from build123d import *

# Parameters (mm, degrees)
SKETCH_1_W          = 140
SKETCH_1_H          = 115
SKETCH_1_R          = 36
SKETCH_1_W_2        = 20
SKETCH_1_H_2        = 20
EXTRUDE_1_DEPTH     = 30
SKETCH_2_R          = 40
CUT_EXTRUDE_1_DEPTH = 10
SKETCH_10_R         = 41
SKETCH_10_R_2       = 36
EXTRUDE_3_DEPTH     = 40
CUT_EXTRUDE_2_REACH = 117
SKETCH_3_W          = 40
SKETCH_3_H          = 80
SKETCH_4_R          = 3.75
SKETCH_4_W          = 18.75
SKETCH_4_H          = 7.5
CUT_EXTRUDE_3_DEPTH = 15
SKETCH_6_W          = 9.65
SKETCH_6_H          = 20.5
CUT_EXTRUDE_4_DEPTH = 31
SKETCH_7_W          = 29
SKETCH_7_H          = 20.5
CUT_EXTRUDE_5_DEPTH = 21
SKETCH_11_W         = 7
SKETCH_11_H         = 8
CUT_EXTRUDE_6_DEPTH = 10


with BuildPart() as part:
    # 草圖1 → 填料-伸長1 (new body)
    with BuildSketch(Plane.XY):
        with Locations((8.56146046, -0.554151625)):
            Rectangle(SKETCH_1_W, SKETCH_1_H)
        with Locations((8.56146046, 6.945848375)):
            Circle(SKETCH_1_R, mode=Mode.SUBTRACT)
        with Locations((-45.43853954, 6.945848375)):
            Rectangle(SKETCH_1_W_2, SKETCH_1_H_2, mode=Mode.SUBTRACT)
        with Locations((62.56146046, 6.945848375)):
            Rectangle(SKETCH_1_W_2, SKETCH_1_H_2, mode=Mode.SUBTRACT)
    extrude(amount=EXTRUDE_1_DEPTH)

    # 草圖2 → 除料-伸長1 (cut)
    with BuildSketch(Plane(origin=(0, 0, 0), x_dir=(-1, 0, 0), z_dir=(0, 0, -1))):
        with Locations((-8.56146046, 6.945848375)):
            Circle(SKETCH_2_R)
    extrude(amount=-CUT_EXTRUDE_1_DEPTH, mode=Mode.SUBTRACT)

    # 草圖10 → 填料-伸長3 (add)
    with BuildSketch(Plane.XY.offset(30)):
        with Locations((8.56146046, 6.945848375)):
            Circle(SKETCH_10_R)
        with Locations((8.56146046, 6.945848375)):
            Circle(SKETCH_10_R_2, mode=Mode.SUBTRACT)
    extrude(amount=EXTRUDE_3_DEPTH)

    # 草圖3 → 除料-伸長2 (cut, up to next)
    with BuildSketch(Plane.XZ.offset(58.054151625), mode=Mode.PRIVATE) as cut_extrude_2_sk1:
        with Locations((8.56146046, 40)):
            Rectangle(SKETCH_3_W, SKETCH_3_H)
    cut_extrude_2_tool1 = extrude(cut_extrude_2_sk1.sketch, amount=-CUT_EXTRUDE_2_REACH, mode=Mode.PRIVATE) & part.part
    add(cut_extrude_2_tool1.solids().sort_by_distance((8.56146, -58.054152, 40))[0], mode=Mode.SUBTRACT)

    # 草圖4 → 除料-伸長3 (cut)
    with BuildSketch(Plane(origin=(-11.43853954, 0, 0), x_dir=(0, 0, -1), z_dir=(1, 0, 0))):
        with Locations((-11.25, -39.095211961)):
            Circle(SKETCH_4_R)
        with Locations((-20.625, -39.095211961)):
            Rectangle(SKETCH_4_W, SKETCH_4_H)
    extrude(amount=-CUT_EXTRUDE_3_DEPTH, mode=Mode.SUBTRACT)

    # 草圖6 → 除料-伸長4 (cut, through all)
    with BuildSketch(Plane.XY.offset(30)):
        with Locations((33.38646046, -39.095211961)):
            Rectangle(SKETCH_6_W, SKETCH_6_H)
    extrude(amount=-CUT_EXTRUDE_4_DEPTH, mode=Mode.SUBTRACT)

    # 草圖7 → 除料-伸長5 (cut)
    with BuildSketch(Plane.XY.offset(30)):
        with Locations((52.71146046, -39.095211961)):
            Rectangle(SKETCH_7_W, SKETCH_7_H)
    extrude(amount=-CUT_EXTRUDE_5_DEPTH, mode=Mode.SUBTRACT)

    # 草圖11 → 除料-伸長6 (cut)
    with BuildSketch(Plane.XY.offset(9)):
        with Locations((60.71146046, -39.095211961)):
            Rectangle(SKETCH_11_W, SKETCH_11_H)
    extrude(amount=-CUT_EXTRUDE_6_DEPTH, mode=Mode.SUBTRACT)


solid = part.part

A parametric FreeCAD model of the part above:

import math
import FreeCAD as App
import Part
import Sketcher

V = App.Vector


def add_polygon(sketch, points):
    """Adds a closed chain of lines whose ends are joined by coincident constraints."""
    first, n = sketch.GeometryCount, len(points)
    for a, b in zip(points, points[1:] + points[:1]):
        sketch.addGeometry(Part.LineSegment(App.Vector(*a, 0), App.Vector(*b, 0)), False)
    for i in range(n):
        sketch.addConstraint(Sketcher.Constraint("Coincident", first + i, 2, first + (i + 1) % n, 1))

doc = App.newDocument("Part")
params = doc.addObject("Spreadsheet::Sheet", "Params")
for row, (alias, value) in enumerate([
    ("sketch1_diameter", "72 mm"),
    ("sketch1_width", "140 mm"),
    ("sketch1_width2", "20 mm"),
    ("sketch1_height", "115 mm"),
    ("pad1_length", "30 mm"),
    ("sketch2_diameter", "80 mm"),
    ("pocket1_length", "10 mm"),
    ("sketch3_diameter", "82 mm"),
    ("sketch3_diameter2", "72 mm"),
    ("pad2_length", "40 mm"),
    ("sketch4_width", "40 mm"),
    ("sketch4_height", "80 mm"),
    ("pocket2_length", "35.066741 mm"),
    ("sketch5_radius", "3.75 mm"),
    ("sketch5_height", "18.75 mm"),
    ("pocket3_length", "15 mm"),
    ("sketch6_height", "20.5 mm"),
    ("sketch6_width", "9.65 mm"),
    ("sketch7_width", "29 mm"),
    ("sketch7_height", "20.5 mm"),
    ("pocket5_length", "21 mm"),
    ("sketch8_width", "7 mm"),
    ("sketch8_height", "8 mm"),
    ("pocket6_length", "10 mm"),
], start=1):
    params.set(f"A{row}", alias)
    params.set(f"B{row}", "=" + value)
    params.setAlias(f"B{row}", alias)

body = doc.addObject("PartDesign::Body", "Body")

sketch1 = doc.addObject("Sketcher::SketchObject", "Sketch")
body.addObject(sketch1)
sketch1.AttachmentSupport = (doc.XY_Plane, [""])
sketch1.MapMode = "FlatFace"
add_polygon(sketch1, [(-61, 57), (-61, -58), (79, -58), (79, 57)])
add_polygon(sketch1, [(-35, -3), (-55, -3), (-55, 17), (-35, 17)])
sketch1.addGeometry(Part.Circle(V(9, 7, 0), V(0, 0, 1), 36), False)
add_polygon(sketch1, [(73, -3), (53, -3), (53, 17), (73, 17)])
sketch1.addConstraint(Sketcher.Constraint("Vertical", 0))
sketch1.addConstraint(Sketcher.Constraint("Horizontal", 1))
sketch1.addConstraint(Sketcher.Constraint("Vertical", 2))
sketch1.addConstraint(Sketcher.Constraint("Horizontal", 3))
sketch1.addConstraint(Sketcher.Constraint("Horizontal", 4))
sketch1.addConstraint(Sketcher.Constraint("Vertical", 5))
sketch1.addConstraint(Sketcher.Constraint("Horizontal", 6))
sketch1.addConstraint(Sketcher.Constraint("Vertical", 7))
sketch1.addConstraint(Sketcher.Constraint("Horizontal", 9))
sketch1.addConstraint(Sketcher.Constraint("Vertical", 10))
sketch1.addConstraint(Sketcher.Constraint("Horizontal", 11))
sketch1.addConstraint(Sketcher.Constraint("Vertical", 12))
sketch1.addConstraint(Sketcher.Constraint("Horizontal", 7, 2, 9, 2))
sketch1.addConstraint(Sketcher.Constraint("Horizontal", 6, 2, 10, 2))
sketch1.addConstraint(Sketcher.Constraint("Equal", 6, 9))
sketch1.addConstraint(Sketcher.Constraint("Equal", 11, 5))
sketch1.addConstraint(Sketcher.Constraint("Diameter", 8, 72.0))
sketch1.addConstraint(Sketcher.Constraint("DistanceX", 1, 1, 1, 2, 140.0))
sketch1.addConstraint(Sketcher.Constraint("DistanceX", 4, 2, 4, 1, 20.0))
sketch1.addConstraint(Sketcher.Constraint("DistanceY", 0, 2, 0, 1, 115.0))
sketch1.addConstraint(Sketcher.Constraint("DistanceX", 0, 2, 8, 3, 70.0))
sketch1.addConstraint(Sketcher.Constraint("DistanceY", 0, 2, 8, 3, 65.0))
sketch1.addConstraint(Sketcher.Constraint("DistanceX", 0, 2, 4, 2, 6.0))
sketch1.addConstraint(Sketcher.Constraint("DistanceY", 0, 2, 4, 2, 55.0))
sketch1.addConstraint(Sketcher.Constraint("DistanceX", 8, 3, 9, 2, 44.0))
sketch1.addConstraint(Sketcher.Constraint("DistanceX", -1, 1, 8, 3, 8.56146))
sketch1.addConstraint(Sketcher.Constraint("DistanceY", -1, 1, 8, 3, 6.945848))
sketch1.setExpression("Constraints[28]", "Params.sketch1_diameter")
sketch1.setExpression("Constraints[29]", "Params.sketch1_width")
sketch1.setExpression("Constraints[30]", "Params.sketch1_width2")
sketch1.setExpression("Constraints[31]", "Params.sketch1_height")
pad1 = doc.addObject("PartDesign::Pad", "Pad")
body.addObject(pad1)
pad1.Profile = sketch1
pad1.setExpression("Length", "Params.pad1_length")

sketch2 = doc.addObject("Sketcher::SketchObject", "Sketch001")
body.addObject(sketch2)
sketch2.AttachmentSupport = (doc.XY_Plane, [""])
sketch2.MapMode = "FlatFace"
sketch2.addGeometry(Part.Circle(V(9, 7, 0), V(0, 0, 1), 40), False)
sketch2.addConstraint(Sketcher.Constraint("Diameter", 0, 80.0))
sketch2.addConstraint(Sketcher.Constraint("DistanceX", -1, 1, 0, 3, 8.56146))
sketch2.addConstraint(Sketcher.Constraint("DistanceY", -1, 1, 0, 3, 6.945848))
sketch2.setExpression("Constraints[0]", "Params.sketch2_diameter")
pocket1 = doc.addObject("PartDesign::Pocket", "Pocket")
body.addObject(pocket1)
pocket1.Profile = sketch2
pocket1.setExpression("Length", "Params.pocket1_length")
pocket1.Reversed = True

sketch3 = doc.addObject("Sketcher::SketchObject", "Sketch002")
body.addObject(sketch3)
sketch3.AttachmentSupport = (doc.XY_Plane, [""])
sketch3.MapMode = "FlatFace"
sketch3.AttachmentOffset = App.Placement(V(0, 0, 30), App.Rotation())
sketch3.addGeometry(Part.Circle(V(9, 7, 0), V(0, 0, 1), 41), False)
sketch3.addGeometry(Part.Circle(V(9, 7, 0), V(0, 0, 1), 36), False)
sketch3.addConstraint(Sketcher.Constraint("Coincident", 1, 3, 0, 3))
sketch3.addConstraint(Sketcher.Constraint("Diameter", 0, 82.0))
sketch3.addConstraint(Sketcher.Constraint("Diameter", 1, 72.0))
sketch3.addConstraint(Sketcher.Constraint("DistanceX", -1, 1, 0, 3, 8.56146))
sketch3.addConstraint(Sketcher.Constraint("DistanceY", -1, 1, 0, 3, 6.945848))
sketch3.setExpression("Constraints[1]", "Params.sketch3_diameter")
sketch3.setExpression("Constraints[2]", "Params.sketch3_diameter2")
pad2 = doc.addObject("PartDesign::Pad", "Pad001")
body.addObject(pad2)
pad2.Profile = sketch3
pad2.setExpression("Length", "Params.pad2_length")

sketch4 = doc.addObject("Sketcher::SketchObject", "Sketch003")
body.addObject(sketch4)
sketch4.AttachmentSupport = (doc.XZ_Plane, [""])
sketch4.MapMode = "FlatFace"
sketch4.AttachmentOffset = App.Placement(V(0, 0, 58.054152), App.Rotation())
add_polygon(sketch4, [(-11, 80), (-11, 0), (29, 0), (29, 80)])
sketch4.addConstraint(Sketcher.Constraint("Vertical", 0))
sketch4.addConstraint(Sketcher.Constraint("Horizontal", 1))
sketch4.addConstraint(Sketcher.Constraint("Vertical", 2))
sketch4.addConstraint(Sketcher.Constraint("Horizontal", 3))
sketch4.addConstraint(Sketcher.Constraint("PointOnObject", 0, 2, -1))
sketch4.addConstraint(Sketcher.Constraint("DistanceX", 1, 1, 1, 2, 40.0))
sketch4.addConstraint(Sketcher.Constraint("DistanceY", 0, 2, 0, 1, 80.0))
sketch4.addConstraint(Sketcher.Constraint("DistanceX", 0, 2, -1, 1, 11.43854))
sketch4.setExpression("Constraints[9]", "Params.sketch4_width")
sketch4.setExpression("Constraints[10]", "Params.sketch4_height")
pocket2 = doc.addObject("PartDesign::Pocket", "Pocket001")
body.addObject(pocket2)
pocket2.Profile = sketch4
pocket2.setExpression("Length", "Params.pocket2_length")

sketch5 = doc.addObject("Sketcher::SketchObject", "Sketch004")
body.addObject(sketch5)
sketch5.AttachmentSupport = (doc.YZ_Plane, [""])
sketch5.MapMode = "FlatFace"
sketch5.AttachmentOffset = App.Placement(V(0, 0, -11.43854), App.Rotation())
sketch5.addGeometry(Part.ArcOfCircle(Part.Circle(V(-39.1, 11.2, 0), V(0, 0, 1), 3.8), math.radians(180), math.radians(360)), False)
sketch5.addGeometry(Part.LineSegment(V(-35.3, 11.2, 0), V(-35.3, 30, 0)), False)
sketch5.addGeometry(Part.LineSegment(V(-35.3, 30, 0), V(-42.8, 30, 0)), False)
sketch5.addGeometry(Part.LineSegment(V(-42.8, 30, 0), V(-42.8, 11.2, 0)), False)
sketch5.addConstraint(Sketcher.Constraint("Tangent", 0, 2, 1, 1))
sketch5.addConstraint(Sketcher.Constraint("Coincident", 1, 2, 2, 1))
sketch5.addConstraint(Sketcher.Constraint("Coincident", 2, 2, 3, 1))
sketch5.addConstraint(Sketcher.Constraint("Tangent", 3, 2, 0, 1))
sketch5.addConstraint(Sketcher.Constraint("Vertical", 1))
sketch5.addConstraint(Sketcher.Constraint("Horizontal", 2))
sketch5.addConstraint(Sketcher.Constraint("Vertical", 3))
sketch5.addConstraint(Sketcher.Constraint("Radius", 0, 3.75))
sketch5.addConstraint(Sketcher.Constraint("DistanceY", -1, 1, 1, 2, 30.0))
sketch5.addConstraint(Sketcher.Constraint("DistanceY", 1, 1, 1, 2, 18.75))
sketch5.addConstraint(Sketcher.Constraint("DistanceX", 0, 3, -1, 1, 39.095212))
sketch5.setExpression("Constraints[7]", "Params.sketch5_radius")
sketch5.setExpression("Constraints[9]", "Params.sketch5_height")
pocket3 = doc.addObject("PartDesign::Pocket", "Pocket002")
body.addObject(pocket3)
pocket3.Profile = sketch5
pocket3.setExpression("Length", "Params.pocket3_length")

sketch6 = doc.addObject("Sketcher::SketchObject", "Sketch005")
body.addObject(sketch6)
sketch6.AttachmentSupport = (doc.XY_Plane, [""])
sketch6.MapMode = "FlatFace"
sketch6.AttachmentOffset = App.Placement(V(0, 0, 30), App.Rotation())
add_polygon(sketch6, [(29, -29), (29, -49), (38, -49), (38, -29)])
sketch6.addConstraint(Sketcher.Constraint("Vertical", 0))
sketch6.addConstraint(Sketcher.Constraint("Horizontal", 1))
sketch6.addConstraint(Sketcher.Constraint("Vertical", 2))
sketch6.addConstraint(Sketcher.Constraint("Horizontal", 3))
sketch6.addConstraint(Sketcher.Constraint("DistanceY", 0, 2, 0, 1, 20.5))
sketch6.addConstraint(Sketcher.Constraint("DistanceX", 1, 1, 1, 2, 9.65))
sketch6.addConstraint(Sketcher.Constraint("DistanceX", -1, 1, 0, 2, 28.56146))
sketch6.addConstraint(Sketcher.Constraint("DistanceY", 0, 2, -1, 1, 49.345212))
sketch6.setExpression("Constraints[8]", "Params.sketch6_height")
sketch6.setExpression("Constraints[9]", "Params.sketch6_width")
pocket4 = doc.addObject("PartDesign::Pocket", "Pocket003")
body.addObject(pocket4)
pocket4.Profile = sketch6
pocket4.Type = "ThroughAll"

sketch7 = doc.addObject("Sketcher::SketchObject", "Sketch006")
body.addObject(sketch7)
sketch7.AttachmentSupport = (doc.XY_Plane, [""])
sketch7.MapMode = "FlatFace"
sketch7.AttachmentOffset = App.Placement(V(0, 0, 30), App.Rotation())
add_polygon(sketch7, [(38, -29), (38, -49), (67, -49), (67, -29)])
sketch7.addConstraint(Sketcher.Constraint("Vertical", 0))
sketch7.addConstraint(Sketcher.Constraint("Horizontal", 1))
sketch7.addConstraint(Sketcher.Constraint("Vertical", 2))
sketch7.addConstraint(Sketcher.Constraint("Horizontal", 3))
sketch7.addConstraint(Sketcher.Constraint("DistanceX", 1, 1, 1, 2, 29.0))
sketch7.addConstraint(Sketcher.Constraint("DistanceY", 0, 2, 0, 1, 20.5))
sketch7.addConstraint(Sketcher.Constraint("DistanceX", -1, 1, 0, 2, 38.21146))
sketch7.addConstraint(Sketcher.Constraint("DistanceY", 0, 2, -1, 1, 49.345212))
sketch7.setExpression("Constraints[8]", "Params.sketch7_width")
sketch7.setExpression("Constraints[9]", "Params.sketch7_height")
pocket5 = doc.addObject("PartDesign::Pocket", "Pocket004")
body.addObject(pocket5)
pocket5.Profile = sketch7
pocket5.setExpression("Length", "Params.pocket5_length")

sketch8 = doc.addObject("Sketcher::SketchObject", "Sketch007")
body.addObject(sketch8)
sketch8.AttachmentSupport = (doc.XY_Plane, [""])
sketch8.MapMode = "FlatFace"
sketch8.AttachmentOffset = App.Placement(V(0, 0, 9), App.Rotation())
add_polygon(sketch8, [(57, -35), (57, -43), (64, -43), (64, -35)])
sketch8.addConstraint(Sketcher.Constraint("Vertical", 0))
sketch8.addConstraint(Sketcher.Constraint("Horizontal", 1))
sketch8.addConstraint(Sketcher.Constraint("Vertical", 2))
sketch8.addConstraint(Sketcher.Constraint("Horizontal", 3))
sketch8.addConstraint(Sketcher.Constraint("DistanceX", 1, 1, 1, 2, 7.0))
sketch8.addConstraint(Sketcher.Constraint("DistanceY", 0, 2, 0, 1, 8.0))
sketch8.addConstraint(Sketcher.Constraint("DistanceX", -1, 1, 0, 2, 57.21146))
sketch8.addConstraint(Sketcher.Constraint("DistanceY", 0, 2, -1, 1, 43.095212))
sketch8.setExpression("Constraints[8]", "Params.sketch8_width")
sketch8.setExpression("Constraints[9]", "Params.sketch8_height")
pocket6 = doc.addObject("PartDesign::Pocket", "Pocket005")
body.addObject(pocket6)
pocket6.Profile = sketch8
pocket6.setExpression("Length", "Params.pocket6_length")

doc.recompute()
